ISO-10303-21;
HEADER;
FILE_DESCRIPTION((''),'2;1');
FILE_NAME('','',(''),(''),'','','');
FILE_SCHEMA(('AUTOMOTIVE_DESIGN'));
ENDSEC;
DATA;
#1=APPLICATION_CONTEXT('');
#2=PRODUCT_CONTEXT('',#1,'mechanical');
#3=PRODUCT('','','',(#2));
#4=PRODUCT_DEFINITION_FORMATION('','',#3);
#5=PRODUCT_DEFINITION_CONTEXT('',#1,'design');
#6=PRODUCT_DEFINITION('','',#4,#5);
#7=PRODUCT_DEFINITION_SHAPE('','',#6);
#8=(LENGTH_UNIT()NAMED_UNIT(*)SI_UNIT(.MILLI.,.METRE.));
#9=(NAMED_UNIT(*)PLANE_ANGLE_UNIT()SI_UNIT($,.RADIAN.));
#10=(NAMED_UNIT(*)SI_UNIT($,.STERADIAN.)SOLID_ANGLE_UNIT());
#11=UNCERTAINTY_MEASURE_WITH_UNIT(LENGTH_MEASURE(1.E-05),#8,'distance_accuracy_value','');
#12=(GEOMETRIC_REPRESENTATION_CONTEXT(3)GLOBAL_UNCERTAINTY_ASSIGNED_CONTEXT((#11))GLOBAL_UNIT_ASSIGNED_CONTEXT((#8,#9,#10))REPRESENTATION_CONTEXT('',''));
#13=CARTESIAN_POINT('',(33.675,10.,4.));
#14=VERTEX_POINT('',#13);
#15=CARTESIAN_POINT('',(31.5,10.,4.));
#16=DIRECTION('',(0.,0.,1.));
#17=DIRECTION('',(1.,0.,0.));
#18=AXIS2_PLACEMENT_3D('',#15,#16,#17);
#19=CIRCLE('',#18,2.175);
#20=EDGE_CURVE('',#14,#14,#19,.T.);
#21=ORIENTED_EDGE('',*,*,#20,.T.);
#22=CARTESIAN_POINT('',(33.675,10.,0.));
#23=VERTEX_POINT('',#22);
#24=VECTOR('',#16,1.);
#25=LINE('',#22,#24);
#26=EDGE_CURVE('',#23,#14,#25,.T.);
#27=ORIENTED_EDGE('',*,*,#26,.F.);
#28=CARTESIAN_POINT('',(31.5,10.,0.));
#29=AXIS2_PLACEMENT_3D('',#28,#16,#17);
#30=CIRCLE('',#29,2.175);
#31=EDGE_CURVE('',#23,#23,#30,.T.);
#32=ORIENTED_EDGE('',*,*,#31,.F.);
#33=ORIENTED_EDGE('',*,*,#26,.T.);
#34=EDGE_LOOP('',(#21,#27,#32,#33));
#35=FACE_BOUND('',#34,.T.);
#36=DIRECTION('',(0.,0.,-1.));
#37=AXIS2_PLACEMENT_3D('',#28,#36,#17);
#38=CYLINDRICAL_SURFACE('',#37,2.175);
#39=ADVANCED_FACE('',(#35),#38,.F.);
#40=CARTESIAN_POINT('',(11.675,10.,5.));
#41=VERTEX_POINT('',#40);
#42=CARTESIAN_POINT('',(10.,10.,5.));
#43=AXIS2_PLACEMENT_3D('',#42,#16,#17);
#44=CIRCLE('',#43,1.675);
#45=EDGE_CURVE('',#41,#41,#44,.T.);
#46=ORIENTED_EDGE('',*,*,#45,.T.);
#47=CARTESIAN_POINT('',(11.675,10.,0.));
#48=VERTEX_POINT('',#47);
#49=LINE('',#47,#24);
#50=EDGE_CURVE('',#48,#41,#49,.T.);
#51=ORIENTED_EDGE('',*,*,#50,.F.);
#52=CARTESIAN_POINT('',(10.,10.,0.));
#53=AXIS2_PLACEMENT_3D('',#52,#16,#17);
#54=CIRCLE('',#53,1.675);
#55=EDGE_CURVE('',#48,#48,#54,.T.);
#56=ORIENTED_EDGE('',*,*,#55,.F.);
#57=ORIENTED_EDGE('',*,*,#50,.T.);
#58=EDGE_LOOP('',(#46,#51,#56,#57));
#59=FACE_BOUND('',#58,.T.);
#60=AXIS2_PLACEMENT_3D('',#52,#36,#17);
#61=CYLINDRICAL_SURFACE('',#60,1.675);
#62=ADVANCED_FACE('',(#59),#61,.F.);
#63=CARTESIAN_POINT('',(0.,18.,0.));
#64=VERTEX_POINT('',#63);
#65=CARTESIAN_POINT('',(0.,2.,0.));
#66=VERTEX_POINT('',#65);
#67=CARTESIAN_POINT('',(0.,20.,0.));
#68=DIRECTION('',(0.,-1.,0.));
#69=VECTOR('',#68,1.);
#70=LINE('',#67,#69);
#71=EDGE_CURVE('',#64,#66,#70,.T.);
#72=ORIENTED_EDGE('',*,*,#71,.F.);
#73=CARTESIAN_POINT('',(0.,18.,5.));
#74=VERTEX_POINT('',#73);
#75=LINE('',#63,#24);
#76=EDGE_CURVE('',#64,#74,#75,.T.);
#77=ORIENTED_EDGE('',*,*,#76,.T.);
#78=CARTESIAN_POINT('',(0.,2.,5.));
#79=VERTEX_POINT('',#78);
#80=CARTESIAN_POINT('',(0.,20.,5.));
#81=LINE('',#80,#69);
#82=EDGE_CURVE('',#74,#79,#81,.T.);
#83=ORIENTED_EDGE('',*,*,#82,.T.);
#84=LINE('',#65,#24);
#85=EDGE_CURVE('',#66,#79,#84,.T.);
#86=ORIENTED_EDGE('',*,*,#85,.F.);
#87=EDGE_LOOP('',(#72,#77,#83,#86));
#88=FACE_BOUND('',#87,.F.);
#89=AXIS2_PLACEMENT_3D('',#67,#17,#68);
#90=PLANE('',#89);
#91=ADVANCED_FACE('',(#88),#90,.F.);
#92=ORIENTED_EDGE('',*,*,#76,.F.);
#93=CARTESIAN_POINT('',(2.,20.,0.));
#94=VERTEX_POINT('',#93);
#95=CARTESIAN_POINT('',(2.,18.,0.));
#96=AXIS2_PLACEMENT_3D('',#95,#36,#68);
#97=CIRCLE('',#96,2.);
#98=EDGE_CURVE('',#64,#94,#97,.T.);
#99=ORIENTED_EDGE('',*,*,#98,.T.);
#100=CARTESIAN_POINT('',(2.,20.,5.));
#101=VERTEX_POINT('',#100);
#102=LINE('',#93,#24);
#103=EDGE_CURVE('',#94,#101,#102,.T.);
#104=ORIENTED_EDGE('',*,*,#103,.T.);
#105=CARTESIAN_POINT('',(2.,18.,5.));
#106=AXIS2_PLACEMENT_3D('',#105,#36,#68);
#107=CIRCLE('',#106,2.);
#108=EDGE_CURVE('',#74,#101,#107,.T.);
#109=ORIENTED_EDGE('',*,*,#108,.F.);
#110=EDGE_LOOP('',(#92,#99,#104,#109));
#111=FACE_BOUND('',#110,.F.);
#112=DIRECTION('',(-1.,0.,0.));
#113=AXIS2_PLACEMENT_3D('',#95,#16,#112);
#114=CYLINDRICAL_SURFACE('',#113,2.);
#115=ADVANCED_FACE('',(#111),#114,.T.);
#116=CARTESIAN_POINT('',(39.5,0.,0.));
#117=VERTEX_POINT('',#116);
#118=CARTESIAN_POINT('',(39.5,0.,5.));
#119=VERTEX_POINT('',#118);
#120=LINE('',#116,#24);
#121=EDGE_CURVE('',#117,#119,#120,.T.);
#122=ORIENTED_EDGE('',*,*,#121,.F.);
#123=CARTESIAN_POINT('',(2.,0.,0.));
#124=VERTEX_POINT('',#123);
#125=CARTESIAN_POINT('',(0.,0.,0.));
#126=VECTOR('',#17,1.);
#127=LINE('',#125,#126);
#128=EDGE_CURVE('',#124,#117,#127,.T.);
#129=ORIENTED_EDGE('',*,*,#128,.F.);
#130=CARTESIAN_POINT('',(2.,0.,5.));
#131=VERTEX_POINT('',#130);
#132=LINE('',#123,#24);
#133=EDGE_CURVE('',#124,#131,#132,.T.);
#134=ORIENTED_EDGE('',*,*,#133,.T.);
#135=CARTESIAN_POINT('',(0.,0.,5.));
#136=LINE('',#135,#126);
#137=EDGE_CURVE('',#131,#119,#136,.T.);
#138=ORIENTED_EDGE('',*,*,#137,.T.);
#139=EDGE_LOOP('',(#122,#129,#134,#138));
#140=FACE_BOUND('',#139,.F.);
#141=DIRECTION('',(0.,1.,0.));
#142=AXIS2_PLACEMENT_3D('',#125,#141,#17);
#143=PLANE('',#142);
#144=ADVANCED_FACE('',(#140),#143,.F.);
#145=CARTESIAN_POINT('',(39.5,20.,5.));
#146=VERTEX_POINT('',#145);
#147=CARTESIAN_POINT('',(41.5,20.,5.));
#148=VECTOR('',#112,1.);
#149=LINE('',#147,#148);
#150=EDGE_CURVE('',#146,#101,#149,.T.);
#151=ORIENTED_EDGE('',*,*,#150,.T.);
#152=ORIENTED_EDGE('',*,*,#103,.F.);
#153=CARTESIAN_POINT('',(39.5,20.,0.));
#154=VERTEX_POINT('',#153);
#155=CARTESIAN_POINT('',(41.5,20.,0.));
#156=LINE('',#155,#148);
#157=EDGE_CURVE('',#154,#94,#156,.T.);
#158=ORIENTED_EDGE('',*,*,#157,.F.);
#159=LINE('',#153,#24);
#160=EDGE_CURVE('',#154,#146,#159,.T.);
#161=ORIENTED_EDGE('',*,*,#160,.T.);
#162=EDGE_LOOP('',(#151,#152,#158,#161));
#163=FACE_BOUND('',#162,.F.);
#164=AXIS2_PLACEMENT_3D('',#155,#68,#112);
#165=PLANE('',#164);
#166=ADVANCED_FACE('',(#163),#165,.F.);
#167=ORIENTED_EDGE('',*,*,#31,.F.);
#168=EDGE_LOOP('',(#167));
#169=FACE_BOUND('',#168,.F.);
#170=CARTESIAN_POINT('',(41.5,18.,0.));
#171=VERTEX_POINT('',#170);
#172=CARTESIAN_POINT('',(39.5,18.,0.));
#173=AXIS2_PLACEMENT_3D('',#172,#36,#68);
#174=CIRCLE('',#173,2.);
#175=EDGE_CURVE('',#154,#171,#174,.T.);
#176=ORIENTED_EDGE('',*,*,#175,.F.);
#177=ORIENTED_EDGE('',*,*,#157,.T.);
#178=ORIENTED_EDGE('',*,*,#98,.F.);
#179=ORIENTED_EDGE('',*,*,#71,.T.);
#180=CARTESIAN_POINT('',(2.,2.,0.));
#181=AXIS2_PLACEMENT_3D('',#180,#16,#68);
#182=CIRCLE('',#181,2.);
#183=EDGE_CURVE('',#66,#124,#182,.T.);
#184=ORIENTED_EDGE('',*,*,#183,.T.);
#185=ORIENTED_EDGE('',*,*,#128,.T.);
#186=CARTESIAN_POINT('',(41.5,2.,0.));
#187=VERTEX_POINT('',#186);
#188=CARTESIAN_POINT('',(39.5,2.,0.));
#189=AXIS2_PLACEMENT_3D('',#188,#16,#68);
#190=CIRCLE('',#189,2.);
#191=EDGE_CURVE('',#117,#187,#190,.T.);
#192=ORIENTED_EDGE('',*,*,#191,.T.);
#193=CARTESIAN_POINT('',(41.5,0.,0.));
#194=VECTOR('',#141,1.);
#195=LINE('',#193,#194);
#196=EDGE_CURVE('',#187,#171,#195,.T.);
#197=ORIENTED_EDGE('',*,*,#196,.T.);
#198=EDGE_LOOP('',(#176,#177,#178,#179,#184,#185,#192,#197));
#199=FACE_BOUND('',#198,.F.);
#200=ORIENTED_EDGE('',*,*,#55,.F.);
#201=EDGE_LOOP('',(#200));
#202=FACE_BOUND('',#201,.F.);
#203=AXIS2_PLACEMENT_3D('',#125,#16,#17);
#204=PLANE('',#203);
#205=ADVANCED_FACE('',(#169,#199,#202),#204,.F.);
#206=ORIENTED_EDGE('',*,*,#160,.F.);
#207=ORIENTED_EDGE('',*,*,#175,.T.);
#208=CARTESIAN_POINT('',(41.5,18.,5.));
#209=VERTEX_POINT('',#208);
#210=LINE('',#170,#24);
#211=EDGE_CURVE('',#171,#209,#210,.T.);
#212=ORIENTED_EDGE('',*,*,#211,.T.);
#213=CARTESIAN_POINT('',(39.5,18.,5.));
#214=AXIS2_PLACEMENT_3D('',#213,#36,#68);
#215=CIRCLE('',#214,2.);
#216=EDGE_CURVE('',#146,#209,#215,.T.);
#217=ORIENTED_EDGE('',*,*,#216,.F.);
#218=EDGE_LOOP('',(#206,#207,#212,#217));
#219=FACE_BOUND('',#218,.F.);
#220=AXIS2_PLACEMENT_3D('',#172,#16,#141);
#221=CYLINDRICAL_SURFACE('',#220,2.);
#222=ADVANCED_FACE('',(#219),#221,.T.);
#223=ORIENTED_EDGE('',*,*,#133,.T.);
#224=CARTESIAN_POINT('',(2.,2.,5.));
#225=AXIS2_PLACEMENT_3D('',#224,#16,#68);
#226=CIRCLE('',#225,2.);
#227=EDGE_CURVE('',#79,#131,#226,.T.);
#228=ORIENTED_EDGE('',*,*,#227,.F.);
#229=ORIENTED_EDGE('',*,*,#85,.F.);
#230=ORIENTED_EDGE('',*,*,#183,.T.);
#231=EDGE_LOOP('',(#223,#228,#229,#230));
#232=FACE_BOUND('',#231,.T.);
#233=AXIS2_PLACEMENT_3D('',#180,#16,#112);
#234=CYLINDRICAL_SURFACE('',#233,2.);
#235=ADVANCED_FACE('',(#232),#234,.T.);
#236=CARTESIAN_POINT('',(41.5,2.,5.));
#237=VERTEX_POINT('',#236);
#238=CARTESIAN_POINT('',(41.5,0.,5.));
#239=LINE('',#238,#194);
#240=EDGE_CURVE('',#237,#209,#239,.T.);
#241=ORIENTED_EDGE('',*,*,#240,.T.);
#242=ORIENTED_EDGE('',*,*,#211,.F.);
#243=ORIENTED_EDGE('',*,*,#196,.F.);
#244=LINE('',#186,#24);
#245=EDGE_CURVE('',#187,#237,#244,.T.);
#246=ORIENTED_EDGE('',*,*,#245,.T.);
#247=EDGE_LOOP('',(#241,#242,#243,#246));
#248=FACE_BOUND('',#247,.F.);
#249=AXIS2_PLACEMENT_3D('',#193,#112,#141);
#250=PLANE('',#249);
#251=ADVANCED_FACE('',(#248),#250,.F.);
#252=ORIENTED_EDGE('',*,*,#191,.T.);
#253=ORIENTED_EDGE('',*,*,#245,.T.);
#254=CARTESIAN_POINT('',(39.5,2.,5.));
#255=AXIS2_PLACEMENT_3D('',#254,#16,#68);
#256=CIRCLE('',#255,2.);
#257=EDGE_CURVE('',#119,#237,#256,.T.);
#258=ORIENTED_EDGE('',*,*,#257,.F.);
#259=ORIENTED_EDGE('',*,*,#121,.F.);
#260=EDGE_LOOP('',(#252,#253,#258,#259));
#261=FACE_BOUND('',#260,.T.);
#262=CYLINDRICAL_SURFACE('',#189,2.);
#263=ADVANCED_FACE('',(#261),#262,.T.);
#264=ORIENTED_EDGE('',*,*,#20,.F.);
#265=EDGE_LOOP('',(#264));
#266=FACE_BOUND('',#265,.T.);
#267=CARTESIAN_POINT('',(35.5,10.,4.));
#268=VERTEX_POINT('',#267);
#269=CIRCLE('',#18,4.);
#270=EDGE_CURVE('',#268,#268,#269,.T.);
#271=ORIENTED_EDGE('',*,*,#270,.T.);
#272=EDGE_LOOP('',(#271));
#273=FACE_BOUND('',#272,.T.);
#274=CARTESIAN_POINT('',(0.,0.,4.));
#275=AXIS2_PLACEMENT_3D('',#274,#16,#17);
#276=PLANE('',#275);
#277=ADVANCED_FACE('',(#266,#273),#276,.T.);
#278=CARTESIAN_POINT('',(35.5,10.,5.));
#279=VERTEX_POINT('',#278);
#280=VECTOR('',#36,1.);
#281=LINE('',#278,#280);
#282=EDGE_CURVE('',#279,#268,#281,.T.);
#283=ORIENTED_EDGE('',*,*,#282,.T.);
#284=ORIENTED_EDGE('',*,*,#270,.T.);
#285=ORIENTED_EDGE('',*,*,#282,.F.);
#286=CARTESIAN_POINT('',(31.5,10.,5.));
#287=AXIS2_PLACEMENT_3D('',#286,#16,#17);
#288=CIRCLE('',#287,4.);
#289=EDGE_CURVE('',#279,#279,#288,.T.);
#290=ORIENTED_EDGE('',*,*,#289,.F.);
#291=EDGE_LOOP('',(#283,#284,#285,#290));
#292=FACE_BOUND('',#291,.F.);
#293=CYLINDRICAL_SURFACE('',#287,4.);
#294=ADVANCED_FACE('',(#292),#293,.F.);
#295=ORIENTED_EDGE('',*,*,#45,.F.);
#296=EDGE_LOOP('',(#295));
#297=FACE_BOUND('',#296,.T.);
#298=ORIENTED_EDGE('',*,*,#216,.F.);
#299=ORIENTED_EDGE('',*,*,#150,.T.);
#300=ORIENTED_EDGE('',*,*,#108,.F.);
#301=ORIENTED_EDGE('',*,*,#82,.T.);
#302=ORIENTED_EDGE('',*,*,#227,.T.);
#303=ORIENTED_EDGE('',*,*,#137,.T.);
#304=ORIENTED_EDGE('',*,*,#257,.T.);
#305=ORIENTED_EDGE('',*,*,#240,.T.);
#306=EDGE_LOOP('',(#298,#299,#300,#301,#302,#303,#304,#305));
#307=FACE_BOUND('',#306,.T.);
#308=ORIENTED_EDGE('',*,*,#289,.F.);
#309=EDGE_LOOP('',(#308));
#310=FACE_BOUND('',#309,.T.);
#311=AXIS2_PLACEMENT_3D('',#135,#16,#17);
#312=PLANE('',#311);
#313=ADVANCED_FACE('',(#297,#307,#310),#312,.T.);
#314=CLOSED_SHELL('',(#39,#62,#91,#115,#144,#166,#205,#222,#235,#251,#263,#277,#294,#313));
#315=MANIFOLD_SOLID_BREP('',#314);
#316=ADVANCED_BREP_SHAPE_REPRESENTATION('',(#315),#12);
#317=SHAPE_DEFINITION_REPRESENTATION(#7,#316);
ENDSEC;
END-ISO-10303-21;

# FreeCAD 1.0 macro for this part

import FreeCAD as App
import Part
import Sketcher

V = App.Vector


def edges_at(feature, points):
    """Names of the edges that pass closest to the given points."""
    edges = feature.Shape.Edges
    near = lambda p: min(range(len(edges)), key=lambda i: edges[i].distToShape(Part.Vertex(*p))[0])
    return sorted({f"Edge{near(p) + 1}" for p in points})


def add_polygon(sketch, points):
    """Adds a closed chain of lines whose ends are joined by coincident constraints."""
    first, n = sketch.GeometryCount, len(points)
    for a, b in zip(points, points[1:] + points[:1]):
        sketch.addGeometry(Part.LineSegment(App.Vector(*a, 0), App.Vector(*b, 0)), False)
    for i in range(n):
        sketch.addConstraint(Sketcher.Constraint("Coincident", first + i, 2, first + (i + 1) % n, 1))

doc = App.newDocument("Part")
body = doc.addObject("PartDesign::Body", "Body")

# Sketch on XY plane
sketch1 = body.newObject("Sketcher::SketchObject", "Sketch")
sketch1.AttachmentSupport = (doc.getObject("XY_Plane"), [""])
sketch1.MapMode = "FlatFace"
add_polygon(sketch1, [(0, 20), (0, 0), (41.5, 0), (41.5, 20)])  # lines 0-3
sketch1.addGeometry(Part.Circle(V(10, 10, 0), V(0, 0, 1), 1.7), False)  # 4
sketch1.addGeometry(Part.Circle(V(31.5, 10, 0), V(0, 0, 1), 2.2), False)  # 5
sketch1.addConstraint([
    Sketcher.Constraint("Vertical", 0),
    Sketcher.Constraint("Horizontal", 1),
    Sketcher.Constraint("Vertical", 2),
    Sketcher.Constraint("Horizontal", 3),
    Sketcher.Constraint("Coincident", 0, 2, -1, 1),
    Sketcher.Constraint("Horizontal", 4, 3, 5, 3),
    Sketcher.Constraint("Diameter", 4, 3.35),
    Sketcher.Constraint("Diameter", 5, 4.35),
    Sketcher.Constraint("DistanceY", 0, 2, 0, 1, 20.0),
    Sketcher.Constraint("DistanceX", 1, 1, 1, 2, 41.5),
    Sketcher.Constraint("DistanceX", -1, 1, 4, 3, 10.0),
    Sketcher.Constraint("DistanceY", -1, 1, 4, 3, 10.0),
    Sketcher.Constraint("DistanceX", 5, 3, 1, 2, 10.0),
])
pad1 = body.newObject("PartDesign::Pad", "Pad")
pad1.Profile = sketch1
pad1.Length = 5

# Sketch on XY plane
sketch2 = body.newObject("Sketcher::SketchObject", "Sketch001")
sketch2.AttachmentSupport = (doc.getObject("XY_Plane"), [""])
sketch2.MapMode = "FlatFace"
sketch2.AttachmentOffset = App.Placement(V(0, 0, 5), App.Rotation())
sketch2.addGeometry([
    Part.Circle(V(31.5, 10, 0), V(0, 0, 1), 4),
    Part.Circle(V(31.5, 10, 0), V(0, 0, 1), 2.2),
], False)
sketch2.addConstraint([
    Sketcher.Constraint("Coincident", 1, 3, 0, 3),
    Sketcher.Constraint("Diameter", 0, 8.0),
    Sketcher.Constraint("Diameter", 1, 4.35),
    Sketcher.Constraint("DistanceY", -1, 1, 0, 3, 10.0),
    Sketcher.Constraint("DistanceX", -1, 1, 0, 3, 31.5),
])
pocket1 = body.newObject("PartDesign::Pocket", "Pocket")
pocket1.Profile = sketch2
pocket1.Length = 1
doc.recompute()

fillet = body.newObject("PartDesign::Fillet", "Fillet")
fillet.Base = (pocket1, edges_at(pocket1, [
    (0, 20, 2.5),
    (41.5, 20, 2.5),
    (41.5, 0, 2.5),
    (0, 0, 2.5),
]))
fillet.Radius = 2

doc.recompute()
